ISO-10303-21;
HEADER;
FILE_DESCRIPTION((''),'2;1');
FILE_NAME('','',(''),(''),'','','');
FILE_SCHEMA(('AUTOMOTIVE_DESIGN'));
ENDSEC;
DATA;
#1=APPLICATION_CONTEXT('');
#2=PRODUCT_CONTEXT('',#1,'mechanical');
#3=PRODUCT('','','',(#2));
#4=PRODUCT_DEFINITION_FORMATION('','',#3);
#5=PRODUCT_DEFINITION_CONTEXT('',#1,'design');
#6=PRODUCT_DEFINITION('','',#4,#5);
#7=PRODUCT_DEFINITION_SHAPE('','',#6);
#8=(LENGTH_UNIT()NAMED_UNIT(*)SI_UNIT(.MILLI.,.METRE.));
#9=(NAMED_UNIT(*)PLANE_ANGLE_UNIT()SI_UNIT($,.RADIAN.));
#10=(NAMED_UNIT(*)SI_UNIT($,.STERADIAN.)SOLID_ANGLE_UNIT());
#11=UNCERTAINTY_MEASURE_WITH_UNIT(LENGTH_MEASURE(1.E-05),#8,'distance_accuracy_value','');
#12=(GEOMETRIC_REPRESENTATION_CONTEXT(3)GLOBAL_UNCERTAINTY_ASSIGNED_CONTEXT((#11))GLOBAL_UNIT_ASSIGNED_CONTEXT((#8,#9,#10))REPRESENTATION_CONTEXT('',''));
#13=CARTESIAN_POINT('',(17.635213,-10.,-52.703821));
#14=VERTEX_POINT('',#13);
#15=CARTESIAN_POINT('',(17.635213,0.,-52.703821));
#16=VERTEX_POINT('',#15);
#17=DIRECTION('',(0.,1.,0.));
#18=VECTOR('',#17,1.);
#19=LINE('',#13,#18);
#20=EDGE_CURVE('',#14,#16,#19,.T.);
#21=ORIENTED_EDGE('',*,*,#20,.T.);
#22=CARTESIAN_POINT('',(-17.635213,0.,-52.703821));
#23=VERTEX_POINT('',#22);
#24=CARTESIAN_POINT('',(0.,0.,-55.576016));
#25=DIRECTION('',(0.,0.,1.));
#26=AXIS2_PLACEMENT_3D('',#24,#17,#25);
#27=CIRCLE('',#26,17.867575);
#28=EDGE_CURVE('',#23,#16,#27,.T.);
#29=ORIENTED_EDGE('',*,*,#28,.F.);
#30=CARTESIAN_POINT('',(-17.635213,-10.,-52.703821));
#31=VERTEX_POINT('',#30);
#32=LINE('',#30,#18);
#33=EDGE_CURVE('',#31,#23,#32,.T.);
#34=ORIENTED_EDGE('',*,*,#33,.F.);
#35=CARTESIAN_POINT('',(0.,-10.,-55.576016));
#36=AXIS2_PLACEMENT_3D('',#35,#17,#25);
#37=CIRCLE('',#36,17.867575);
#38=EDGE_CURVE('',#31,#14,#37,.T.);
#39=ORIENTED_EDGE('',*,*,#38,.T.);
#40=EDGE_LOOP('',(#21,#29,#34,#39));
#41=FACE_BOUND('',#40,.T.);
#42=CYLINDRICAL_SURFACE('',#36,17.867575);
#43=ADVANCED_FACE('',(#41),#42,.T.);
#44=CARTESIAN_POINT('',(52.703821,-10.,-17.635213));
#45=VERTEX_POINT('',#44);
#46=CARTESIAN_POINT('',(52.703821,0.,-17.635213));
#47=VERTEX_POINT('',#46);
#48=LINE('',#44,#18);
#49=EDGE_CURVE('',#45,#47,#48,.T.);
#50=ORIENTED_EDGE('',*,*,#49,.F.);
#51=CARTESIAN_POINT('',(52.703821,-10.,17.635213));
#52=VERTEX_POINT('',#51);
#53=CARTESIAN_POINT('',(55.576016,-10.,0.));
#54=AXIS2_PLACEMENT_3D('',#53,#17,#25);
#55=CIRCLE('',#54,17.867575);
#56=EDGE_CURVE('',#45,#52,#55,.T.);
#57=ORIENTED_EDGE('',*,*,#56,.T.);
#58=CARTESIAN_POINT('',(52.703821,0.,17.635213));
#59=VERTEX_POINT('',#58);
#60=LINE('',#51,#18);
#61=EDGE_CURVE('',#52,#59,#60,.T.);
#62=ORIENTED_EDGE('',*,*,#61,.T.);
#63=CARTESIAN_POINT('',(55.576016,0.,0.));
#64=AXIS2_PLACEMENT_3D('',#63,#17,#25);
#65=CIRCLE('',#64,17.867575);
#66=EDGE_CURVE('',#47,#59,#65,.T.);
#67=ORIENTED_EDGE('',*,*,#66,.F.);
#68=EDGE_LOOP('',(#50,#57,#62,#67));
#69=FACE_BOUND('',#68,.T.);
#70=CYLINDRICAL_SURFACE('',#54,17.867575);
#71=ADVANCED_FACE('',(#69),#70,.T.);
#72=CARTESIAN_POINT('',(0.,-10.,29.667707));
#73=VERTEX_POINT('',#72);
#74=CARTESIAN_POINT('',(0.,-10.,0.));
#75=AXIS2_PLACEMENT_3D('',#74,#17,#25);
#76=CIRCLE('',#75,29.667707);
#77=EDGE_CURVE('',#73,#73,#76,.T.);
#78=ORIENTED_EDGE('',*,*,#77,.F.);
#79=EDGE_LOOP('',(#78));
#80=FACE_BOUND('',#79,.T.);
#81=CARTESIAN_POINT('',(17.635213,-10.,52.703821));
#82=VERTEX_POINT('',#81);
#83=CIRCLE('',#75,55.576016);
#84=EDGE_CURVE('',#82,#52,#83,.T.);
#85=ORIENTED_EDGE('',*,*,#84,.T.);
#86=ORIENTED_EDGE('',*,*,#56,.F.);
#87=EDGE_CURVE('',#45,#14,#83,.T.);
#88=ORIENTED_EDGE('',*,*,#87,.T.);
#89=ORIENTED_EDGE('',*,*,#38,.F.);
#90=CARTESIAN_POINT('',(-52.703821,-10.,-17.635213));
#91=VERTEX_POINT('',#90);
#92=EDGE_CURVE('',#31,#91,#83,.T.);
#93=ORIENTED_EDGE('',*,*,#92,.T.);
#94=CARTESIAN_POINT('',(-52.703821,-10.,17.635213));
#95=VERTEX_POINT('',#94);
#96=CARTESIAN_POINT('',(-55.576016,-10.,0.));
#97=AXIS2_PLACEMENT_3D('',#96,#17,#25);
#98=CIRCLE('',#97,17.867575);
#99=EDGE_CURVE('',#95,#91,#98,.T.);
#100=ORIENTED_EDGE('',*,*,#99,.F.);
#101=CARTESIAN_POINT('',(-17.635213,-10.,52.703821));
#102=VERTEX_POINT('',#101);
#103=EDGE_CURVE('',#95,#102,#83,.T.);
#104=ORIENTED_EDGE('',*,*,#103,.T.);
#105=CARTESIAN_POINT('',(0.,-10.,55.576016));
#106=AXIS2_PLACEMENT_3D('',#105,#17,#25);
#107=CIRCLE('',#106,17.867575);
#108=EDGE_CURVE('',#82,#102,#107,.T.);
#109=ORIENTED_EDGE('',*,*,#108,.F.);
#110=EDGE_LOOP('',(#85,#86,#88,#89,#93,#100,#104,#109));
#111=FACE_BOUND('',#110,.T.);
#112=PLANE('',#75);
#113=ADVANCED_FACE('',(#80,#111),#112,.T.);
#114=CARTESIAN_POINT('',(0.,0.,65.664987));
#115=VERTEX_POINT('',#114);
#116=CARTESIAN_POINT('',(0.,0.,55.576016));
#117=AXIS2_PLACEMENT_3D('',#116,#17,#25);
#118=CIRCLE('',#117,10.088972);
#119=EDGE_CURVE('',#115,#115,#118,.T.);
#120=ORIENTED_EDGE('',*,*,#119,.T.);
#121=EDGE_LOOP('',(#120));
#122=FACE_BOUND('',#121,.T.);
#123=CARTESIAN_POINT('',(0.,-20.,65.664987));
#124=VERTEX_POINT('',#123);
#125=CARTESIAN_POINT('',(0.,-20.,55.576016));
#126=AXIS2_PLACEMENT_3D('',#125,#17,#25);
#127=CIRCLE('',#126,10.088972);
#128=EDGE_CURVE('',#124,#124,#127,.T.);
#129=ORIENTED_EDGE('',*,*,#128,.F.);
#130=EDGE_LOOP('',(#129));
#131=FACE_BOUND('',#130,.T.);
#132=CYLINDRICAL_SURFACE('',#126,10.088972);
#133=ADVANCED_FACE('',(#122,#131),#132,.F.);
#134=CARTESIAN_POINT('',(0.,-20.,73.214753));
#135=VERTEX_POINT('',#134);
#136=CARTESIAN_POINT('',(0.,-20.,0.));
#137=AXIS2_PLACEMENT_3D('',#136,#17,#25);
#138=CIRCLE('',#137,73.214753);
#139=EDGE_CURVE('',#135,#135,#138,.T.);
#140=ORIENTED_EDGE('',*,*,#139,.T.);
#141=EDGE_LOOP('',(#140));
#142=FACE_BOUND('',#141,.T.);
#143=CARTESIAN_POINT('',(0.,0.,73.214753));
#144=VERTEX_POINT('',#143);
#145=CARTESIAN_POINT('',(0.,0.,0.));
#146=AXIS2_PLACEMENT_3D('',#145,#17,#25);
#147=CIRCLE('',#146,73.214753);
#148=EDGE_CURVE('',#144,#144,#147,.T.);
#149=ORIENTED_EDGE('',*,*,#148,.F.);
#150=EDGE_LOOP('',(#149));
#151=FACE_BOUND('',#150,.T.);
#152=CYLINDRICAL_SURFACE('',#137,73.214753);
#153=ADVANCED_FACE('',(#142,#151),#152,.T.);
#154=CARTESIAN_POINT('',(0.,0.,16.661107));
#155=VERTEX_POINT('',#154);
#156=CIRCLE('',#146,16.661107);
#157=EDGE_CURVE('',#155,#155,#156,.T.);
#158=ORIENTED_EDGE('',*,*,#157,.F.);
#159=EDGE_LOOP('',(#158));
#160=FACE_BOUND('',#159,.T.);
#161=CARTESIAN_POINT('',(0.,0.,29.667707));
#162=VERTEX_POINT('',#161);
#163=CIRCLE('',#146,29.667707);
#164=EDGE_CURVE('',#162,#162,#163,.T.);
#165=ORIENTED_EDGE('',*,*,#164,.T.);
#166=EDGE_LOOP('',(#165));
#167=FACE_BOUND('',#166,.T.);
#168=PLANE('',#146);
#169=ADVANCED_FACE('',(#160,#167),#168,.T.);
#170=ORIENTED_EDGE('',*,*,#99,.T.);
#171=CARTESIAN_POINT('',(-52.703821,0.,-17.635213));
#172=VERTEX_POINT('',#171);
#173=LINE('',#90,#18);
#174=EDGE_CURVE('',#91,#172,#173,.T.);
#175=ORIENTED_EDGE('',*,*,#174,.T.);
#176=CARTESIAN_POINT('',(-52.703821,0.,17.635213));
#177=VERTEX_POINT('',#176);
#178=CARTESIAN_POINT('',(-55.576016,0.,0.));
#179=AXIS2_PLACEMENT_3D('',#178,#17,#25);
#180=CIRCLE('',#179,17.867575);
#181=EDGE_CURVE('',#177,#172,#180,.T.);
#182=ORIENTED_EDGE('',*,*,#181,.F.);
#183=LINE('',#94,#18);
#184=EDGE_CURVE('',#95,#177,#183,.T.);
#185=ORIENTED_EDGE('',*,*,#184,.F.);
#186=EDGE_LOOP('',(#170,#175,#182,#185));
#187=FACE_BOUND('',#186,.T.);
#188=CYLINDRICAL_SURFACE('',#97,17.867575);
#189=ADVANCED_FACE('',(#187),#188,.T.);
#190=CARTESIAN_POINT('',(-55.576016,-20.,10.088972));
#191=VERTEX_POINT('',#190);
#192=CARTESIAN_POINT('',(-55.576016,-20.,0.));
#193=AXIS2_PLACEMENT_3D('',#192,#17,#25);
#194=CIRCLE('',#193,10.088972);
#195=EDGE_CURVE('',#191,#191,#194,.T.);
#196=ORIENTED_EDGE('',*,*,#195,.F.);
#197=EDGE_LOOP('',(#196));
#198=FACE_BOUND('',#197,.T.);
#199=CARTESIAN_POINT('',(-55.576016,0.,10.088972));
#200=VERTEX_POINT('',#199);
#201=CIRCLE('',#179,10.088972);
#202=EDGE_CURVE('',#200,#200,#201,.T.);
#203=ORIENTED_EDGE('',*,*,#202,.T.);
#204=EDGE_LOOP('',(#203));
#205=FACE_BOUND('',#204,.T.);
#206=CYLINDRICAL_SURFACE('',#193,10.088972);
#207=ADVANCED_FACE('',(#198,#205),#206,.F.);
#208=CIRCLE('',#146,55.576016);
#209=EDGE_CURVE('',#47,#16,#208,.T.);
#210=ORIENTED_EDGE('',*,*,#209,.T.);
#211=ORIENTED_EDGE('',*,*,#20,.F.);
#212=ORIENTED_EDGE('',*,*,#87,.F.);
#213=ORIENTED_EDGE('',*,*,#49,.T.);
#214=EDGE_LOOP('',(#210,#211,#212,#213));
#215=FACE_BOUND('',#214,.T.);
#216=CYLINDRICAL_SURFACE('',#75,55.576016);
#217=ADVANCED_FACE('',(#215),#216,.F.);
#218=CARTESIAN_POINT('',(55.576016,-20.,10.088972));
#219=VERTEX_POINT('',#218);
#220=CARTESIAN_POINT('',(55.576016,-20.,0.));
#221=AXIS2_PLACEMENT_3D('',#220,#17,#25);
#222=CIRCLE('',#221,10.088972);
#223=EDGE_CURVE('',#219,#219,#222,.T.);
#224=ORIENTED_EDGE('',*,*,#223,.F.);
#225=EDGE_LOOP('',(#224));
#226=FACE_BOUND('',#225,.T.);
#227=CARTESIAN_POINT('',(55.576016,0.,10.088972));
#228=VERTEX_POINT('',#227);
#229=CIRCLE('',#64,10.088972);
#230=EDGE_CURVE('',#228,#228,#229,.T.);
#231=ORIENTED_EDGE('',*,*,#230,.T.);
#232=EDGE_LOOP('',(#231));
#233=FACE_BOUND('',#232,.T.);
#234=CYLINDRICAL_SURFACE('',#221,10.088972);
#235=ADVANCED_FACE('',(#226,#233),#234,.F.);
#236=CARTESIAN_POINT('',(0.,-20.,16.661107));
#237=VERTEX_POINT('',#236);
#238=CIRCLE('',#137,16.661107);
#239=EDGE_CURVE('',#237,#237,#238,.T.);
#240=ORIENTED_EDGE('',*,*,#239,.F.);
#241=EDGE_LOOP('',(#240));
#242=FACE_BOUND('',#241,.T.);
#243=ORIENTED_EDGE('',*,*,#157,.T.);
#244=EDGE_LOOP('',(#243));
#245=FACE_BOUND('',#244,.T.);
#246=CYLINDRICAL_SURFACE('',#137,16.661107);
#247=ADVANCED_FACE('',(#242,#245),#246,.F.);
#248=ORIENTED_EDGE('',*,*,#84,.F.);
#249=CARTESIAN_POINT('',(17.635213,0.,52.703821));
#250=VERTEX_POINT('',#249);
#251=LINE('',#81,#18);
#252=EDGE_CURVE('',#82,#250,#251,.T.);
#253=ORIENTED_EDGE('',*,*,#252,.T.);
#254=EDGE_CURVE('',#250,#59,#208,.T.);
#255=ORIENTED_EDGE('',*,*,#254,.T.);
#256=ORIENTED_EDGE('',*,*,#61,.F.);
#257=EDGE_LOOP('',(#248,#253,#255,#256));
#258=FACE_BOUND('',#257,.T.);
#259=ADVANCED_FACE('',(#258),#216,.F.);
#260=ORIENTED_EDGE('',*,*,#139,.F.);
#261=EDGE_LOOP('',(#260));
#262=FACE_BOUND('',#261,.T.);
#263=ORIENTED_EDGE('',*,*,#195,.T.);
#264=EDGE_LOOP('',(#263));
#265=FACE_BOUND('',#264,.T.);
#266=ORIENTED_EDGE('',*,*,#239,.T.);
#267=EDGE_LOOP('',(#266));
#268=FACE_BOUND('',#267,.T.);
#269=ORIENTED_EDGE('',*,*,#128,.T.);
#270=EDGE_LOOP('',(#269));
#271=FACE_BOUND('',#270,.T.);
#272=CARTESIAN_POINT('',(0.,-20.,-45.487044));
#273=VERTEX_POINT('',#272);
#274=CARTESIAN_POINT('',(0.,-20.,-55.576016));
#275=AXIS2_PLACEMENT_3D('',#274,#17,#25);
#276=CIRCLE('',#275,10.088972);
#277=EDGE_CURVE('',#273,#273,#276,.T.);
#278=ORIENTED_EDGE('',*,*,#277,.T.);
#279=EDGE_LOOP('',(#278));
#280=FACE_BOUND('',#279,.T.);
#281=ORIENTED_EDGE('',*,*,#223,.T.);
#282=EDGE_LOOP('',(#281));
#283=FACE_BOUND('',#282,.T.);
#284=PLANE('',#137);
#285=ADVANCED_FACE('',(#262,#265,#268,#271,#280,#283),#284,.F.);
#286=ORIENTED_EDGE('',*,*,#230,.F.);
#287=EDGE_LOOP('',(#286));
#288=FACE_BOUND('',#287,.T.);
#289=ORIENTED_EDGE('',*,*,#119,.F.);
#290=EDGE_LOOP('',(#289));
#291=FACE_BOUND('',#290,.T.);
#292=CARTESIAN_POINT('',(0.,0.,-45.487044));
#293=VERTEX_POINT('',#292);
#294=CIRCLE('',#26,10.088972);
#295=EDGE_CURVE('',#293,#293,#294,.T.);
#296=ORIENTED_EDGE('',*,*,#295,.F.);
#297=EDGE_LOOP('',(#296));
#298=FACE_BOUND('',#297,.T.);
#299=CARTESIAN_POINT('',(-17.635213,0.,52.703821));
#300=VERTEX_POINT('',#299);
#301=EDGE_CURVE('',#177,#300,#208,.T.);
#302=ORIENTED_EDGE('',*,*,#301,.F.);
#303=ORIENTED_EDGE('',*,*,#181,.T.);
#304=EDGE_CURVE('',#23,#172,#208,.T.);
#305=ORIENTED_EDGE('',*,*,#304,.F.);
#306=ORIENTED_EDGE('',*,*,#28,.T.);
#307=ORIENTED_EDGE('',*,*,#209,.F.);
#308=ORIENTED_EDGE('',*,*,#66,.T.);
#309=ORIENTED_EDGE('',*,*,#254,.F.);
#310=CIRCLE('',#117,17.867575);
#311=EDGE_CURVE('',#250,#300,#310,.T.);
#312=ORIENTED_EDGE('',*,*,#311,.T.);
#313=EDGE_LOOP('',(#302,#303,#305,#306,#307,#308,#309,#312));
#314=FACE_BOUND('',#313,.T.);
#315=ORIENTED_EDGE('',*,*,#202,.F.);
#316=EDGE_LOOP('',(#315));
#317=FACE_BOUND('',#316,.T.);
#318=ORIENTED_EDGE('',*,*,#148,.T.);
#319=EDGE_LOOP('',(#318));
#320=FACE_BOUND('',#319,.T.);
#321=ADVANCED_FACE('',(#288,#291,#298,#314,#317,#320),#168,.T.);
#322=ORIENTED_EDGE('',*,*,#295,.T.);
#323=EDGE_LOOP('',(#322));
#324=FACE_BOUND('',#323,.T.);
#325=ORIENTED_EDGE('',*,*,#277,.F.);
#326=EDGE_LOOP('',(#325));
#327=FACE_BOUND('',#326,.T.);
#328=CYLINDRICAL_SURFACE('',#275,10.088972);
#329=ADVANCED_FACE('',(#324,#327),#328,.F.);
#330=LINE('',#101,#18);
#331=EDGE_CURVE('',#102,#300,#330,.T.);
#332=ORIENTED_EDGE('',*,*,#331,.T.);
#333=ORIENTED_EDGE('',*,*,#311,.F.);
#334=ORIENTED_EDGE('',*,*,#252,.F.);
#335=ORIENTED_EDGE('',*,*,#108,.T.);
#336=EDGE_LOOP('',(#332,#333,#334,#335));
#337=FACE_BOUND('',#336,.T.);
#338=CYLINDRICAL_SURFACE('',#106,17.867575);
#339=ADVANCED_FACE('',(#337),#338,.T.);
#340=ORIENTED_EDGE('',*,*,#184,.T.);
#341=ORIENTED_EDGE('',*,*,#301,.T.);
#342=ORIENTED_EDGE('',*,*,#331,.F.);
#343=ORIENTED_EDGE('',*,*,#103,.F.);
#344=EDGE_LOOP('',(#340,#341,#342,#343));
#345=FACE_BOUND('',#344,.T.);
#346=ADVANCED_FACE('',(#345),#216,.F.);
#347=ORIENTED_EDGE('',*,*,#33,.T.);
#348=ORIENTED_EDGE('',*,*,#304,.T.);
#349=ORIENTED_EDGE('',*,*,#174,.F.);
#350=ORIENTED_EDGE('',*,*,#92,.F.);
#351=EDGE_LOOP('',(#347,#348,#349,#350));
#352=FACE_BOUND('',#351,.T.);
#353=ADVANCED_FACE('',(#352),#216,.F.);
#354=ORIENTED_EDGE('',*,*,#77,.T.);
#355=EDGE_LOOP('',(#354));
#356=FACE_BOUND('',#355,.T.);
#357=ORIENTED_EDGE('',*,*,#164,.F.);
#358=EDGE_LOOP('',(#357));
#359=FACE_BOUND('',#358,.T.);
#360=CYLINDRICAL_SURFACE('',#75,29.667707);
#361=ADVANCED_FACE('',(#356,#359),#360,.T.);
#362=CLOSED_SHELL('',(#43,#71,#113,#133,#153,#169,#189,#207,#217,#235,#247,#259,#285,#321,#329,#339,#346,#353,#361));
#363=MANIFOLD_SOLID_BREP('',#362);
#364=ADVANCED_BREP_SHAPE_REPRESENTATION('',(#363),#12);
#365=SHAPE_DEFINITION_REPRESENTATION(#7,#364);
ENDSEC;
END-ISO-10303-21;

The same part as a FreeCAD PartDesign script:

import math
import FreeCAD as App
import Part
import Sketcher
from FreeCAD import Vector

doc = App.newDocument("Part")
params = doc.addObject("Spreadsheet::Sheet", "Params")
for row, (alias, value) in enumerate([
    ("pad1_length", "20 mm"),
    ("pocket1_length", "20 mm"),
    ("pocket2_length", "10 mm"),
], start=1):
    params.set(f"A{row}", alias)
    params.set(f"B{row}", "=" + value)
    params.setAlias(f"B{row}", alias)

body = doc.addObject("PartDesign::Body", "Body")

# Sketch on XZ plane
sketch1 = doc.addObject("Sketcher::SketchObject", "Sketch")
body.addObject(sketch1)
sketch1.AttachmentSupport = (doc.XZ_Plane, [""])
sketch1.MapMode = "FlatFace"
sketch1.addGeometry(Part.Circle(Vector(0, 0, 0), Vector(0, 0, 1), 73), False)
sketch1.addConstraint([
    Sketcher.Constraint("Coincident", 0, 3, -1, 1),
    Sketcher.Constraint("Diameter", 0, 146.429505),
])
pad1 = doc.addObject("PartDesign::Pad", "Pad")
body.addObject(pad1)
pad1.Profile = sketch1
pad1.setExpression("Length", "Params.pad1_length")

# Sketch on XZ plane
sketch2 = doc.addObject("Sketcher::SketchObject", "Sketch001")
body.addObject(sketch2)
sketch2.AttachmentSupport = (doc.XZ_Plane, [""])
sketch2.MapMode = "FlatFace"
sketch2.addGeometry([
    Part.Circle(Vector(0, 0, 0), Vector(0, 0, 1), 17),  # 0
    Part.Circle(Vector(-56, 0, 0), Vector(0, 0, 1), 10),  # 1
    Part.Circle(Vector(0, -56, 0), Vector(0, 0, 1), 10),  # 2
    Part.Circle(Vector(56, 0, 0), Vector(0, 0, 1), 10),  # 3
    Part.Circle(Vector(0, 56, 0), Vector(0, 0, 1), 10),  # 4
], False)
sketch2.addConstraint([
    Sketcher.Constraint("Coincident", 0, 3, -1, 1),
    Sketcher.Constraint("Equal", 1, 2),
    Sketcher.Constraint("Equal", 2, 3),
    Sketcher.Constraint("Equal", 3, 4),
    Sketcher.Constraint("Symmetric", 1, 3, 3, 3, -1, 1),
    Sketcher.Constraint("Symmetric", 2, 3, 4, 3, -1, 1),
    Sketcher.Constraint("PointOnObject", 1, 3, -1),
    Sketcher.Constraint("PointOnObject", 2, 3, -2),
    Sketcher.Constraint("Diameter", 0, 33.322215),
    Sketcher.Constraint("Diameter", 1, 20.177943),
    Sketcher.Constraint("DistanceX", 1, 3, 3, 3, 111.152032),
    Sketcher.Constraint("DistanceY", 2, 3, 4, 3, 111.152032),
])
pocket1 = doc.addObject("PartDesign::Pocket", "Pocket")
body.addObject(pocket1)
pocket1.Profile = sketch2
pocket1.setExpression("Length", "Params.pocket1_length")
pocket1.Reversed = True

# Sketch on XZ plane
sketch3 = doc.addObject("Sketcher::SketchObject", "Sketch002")
body.addObject(sketch3)
sketch3.AttachmentSupport = (doc.XZ_Plane, [""])
sketch3.MapMode = "FlatFace"
sketch3.addGeometry([
    Part.ArcOfCircle(Part.Circle(Vector(56, 0, 0), Vector(0, 0, 1), 18), math.radians(99), math.radians(261)),  # 0
    Part.ArcOfCircle(Part.Circle(Vector(0, 0, 0), Vector(0, 0, 1), 56), math.radians(-71), math.radians(-19)),  # 1
    Part.ArcOfCircle(Part.Circle(Vector(0, -56, 0), Vector(0, 0, 1), 18), math.radians(9), math.radians(171)),  # 2
    Part.ArcOfCircle(Part.Circle(Vector(0, 0, 0), Vector(0, 0, 1), 56), math.radians(-161), math.radians(-109)),  # 3
    Part.ArcOfCircle(Part.Circle(Vector(-56, 0, 0), Vector(0, 0, 1), 18), math.radians(-81), math.radians(0)),  # 4
    Part.ArcOfCircle(Part.Circle(Vector(-56, 0, 0), Vector(0, 0, 1), 18), math.radians(0), math.radians(81)),  # 5
    Part.ArcOfCircle(Part.Circle(Vector(0, 0, 0), Vector(0, 0, 1), 56), math.radians(109), math.radians(161)),  # 6
    Part.ArcOfCircle(Part.Circle(Vector(0, 56, 0), Vector(0, 0, 1), 18), math.radians(-171), math.radians(-9)),  # 7
    Part.ArcOfCircle(Part.Circle(Vector(0, 0, 0), Vector(0, 0, 1), 56), math.radians(19), math.radians(71)),  # 8
    Part.Circle(Vector(0, 0, 0), Vector(0, 0, 1), 30),  # 9
], False)
sketch3.addConstraint([
    Sketcher.Constraint("Coincident", 0, 2, 1, 2),
    Sketcher.Constraint("Coincident", 1, 1, 2, 1),
    Sketcher.Constraint("Coincident", 2, 2, 3, 2),
    Sketcher.Constraint("Coincident", 3, 1, 4, 1),
    Sketcher.Constraint("Tangent", 4, 2, 5, 1),
    Sketcher.Constraint("Coincident", 5, 2, 6, 2),
    Sketcher.Constraint("Coincident", 6, 1, 7, 1),
    Sketcher.Constraint("Coincident", 7, 2, 8, 2),
    Sketcher.Constraint("Coincident", 8, 1, 0, 1),
    Sketcher.Constraint("Coincident", 1, 3, -1, 1),
    Sketcher.Constraint("Coincident", 3, 3, -1, 1),
    Sketcher.Constraint("Coincident", 6, 3, -1, 1),
    Sketcher.Constraint("Coincident", 8, 3, -1, 1),
    Sketcher.Constraint("Coincident", 9, 3, -1, 1),
    Sketcher.Constraint("Equal", 0, 2),
    Sketcher.Constraint("Equal", 1, 3),
    Sketcher.Constraint("Equal", 2, 4),
    Sketcher.Constraint("Equal", 4, 5),
    Sketcher.Constraint("Equal", 3, 6),
    Sketcher.Constraint("Equal", 5, 7),
    Sketcher.Constraint("Equal", 6, 8),
    Sketcher.Constraint("Symmetric", 0, 3, 4, 3, -1, 1),
    Sketcher.Constraint("Symmetric", 2, 3, 7, 3, -1, 1),
    Sketcher.Constraint("PointOnObject", 0, 3, -1),
    Sketcher.Constraint("PointOnObject", 2, 3, -2),
    Sketcher.Constraint("PointOnObject", 4, 2, -1),
    Sketcher.Constraint("Diameter", 9, 59.335415),
    Sketcher.Constraint("Radius", 0, 17.867575),
    Sketcher.Constraint("Radius", 1, 55.576016),
    Sketcher.Constraint("DistanceY", 1, 1, -1, 1, 52.703821),
    Sketcher.Constraint("DistanceX", 4, 2, -1, 1, 37.70844),
])
pocket2 = doc.addObject("PartDesign::Pocket", "Pocket001")
body.addObject(pocket2)
pocket2.Profile = sketch3
pocket2.setExpression("Length", "Params.pocket2_length")
pocket2.Reversed = True

doc.recompute()
